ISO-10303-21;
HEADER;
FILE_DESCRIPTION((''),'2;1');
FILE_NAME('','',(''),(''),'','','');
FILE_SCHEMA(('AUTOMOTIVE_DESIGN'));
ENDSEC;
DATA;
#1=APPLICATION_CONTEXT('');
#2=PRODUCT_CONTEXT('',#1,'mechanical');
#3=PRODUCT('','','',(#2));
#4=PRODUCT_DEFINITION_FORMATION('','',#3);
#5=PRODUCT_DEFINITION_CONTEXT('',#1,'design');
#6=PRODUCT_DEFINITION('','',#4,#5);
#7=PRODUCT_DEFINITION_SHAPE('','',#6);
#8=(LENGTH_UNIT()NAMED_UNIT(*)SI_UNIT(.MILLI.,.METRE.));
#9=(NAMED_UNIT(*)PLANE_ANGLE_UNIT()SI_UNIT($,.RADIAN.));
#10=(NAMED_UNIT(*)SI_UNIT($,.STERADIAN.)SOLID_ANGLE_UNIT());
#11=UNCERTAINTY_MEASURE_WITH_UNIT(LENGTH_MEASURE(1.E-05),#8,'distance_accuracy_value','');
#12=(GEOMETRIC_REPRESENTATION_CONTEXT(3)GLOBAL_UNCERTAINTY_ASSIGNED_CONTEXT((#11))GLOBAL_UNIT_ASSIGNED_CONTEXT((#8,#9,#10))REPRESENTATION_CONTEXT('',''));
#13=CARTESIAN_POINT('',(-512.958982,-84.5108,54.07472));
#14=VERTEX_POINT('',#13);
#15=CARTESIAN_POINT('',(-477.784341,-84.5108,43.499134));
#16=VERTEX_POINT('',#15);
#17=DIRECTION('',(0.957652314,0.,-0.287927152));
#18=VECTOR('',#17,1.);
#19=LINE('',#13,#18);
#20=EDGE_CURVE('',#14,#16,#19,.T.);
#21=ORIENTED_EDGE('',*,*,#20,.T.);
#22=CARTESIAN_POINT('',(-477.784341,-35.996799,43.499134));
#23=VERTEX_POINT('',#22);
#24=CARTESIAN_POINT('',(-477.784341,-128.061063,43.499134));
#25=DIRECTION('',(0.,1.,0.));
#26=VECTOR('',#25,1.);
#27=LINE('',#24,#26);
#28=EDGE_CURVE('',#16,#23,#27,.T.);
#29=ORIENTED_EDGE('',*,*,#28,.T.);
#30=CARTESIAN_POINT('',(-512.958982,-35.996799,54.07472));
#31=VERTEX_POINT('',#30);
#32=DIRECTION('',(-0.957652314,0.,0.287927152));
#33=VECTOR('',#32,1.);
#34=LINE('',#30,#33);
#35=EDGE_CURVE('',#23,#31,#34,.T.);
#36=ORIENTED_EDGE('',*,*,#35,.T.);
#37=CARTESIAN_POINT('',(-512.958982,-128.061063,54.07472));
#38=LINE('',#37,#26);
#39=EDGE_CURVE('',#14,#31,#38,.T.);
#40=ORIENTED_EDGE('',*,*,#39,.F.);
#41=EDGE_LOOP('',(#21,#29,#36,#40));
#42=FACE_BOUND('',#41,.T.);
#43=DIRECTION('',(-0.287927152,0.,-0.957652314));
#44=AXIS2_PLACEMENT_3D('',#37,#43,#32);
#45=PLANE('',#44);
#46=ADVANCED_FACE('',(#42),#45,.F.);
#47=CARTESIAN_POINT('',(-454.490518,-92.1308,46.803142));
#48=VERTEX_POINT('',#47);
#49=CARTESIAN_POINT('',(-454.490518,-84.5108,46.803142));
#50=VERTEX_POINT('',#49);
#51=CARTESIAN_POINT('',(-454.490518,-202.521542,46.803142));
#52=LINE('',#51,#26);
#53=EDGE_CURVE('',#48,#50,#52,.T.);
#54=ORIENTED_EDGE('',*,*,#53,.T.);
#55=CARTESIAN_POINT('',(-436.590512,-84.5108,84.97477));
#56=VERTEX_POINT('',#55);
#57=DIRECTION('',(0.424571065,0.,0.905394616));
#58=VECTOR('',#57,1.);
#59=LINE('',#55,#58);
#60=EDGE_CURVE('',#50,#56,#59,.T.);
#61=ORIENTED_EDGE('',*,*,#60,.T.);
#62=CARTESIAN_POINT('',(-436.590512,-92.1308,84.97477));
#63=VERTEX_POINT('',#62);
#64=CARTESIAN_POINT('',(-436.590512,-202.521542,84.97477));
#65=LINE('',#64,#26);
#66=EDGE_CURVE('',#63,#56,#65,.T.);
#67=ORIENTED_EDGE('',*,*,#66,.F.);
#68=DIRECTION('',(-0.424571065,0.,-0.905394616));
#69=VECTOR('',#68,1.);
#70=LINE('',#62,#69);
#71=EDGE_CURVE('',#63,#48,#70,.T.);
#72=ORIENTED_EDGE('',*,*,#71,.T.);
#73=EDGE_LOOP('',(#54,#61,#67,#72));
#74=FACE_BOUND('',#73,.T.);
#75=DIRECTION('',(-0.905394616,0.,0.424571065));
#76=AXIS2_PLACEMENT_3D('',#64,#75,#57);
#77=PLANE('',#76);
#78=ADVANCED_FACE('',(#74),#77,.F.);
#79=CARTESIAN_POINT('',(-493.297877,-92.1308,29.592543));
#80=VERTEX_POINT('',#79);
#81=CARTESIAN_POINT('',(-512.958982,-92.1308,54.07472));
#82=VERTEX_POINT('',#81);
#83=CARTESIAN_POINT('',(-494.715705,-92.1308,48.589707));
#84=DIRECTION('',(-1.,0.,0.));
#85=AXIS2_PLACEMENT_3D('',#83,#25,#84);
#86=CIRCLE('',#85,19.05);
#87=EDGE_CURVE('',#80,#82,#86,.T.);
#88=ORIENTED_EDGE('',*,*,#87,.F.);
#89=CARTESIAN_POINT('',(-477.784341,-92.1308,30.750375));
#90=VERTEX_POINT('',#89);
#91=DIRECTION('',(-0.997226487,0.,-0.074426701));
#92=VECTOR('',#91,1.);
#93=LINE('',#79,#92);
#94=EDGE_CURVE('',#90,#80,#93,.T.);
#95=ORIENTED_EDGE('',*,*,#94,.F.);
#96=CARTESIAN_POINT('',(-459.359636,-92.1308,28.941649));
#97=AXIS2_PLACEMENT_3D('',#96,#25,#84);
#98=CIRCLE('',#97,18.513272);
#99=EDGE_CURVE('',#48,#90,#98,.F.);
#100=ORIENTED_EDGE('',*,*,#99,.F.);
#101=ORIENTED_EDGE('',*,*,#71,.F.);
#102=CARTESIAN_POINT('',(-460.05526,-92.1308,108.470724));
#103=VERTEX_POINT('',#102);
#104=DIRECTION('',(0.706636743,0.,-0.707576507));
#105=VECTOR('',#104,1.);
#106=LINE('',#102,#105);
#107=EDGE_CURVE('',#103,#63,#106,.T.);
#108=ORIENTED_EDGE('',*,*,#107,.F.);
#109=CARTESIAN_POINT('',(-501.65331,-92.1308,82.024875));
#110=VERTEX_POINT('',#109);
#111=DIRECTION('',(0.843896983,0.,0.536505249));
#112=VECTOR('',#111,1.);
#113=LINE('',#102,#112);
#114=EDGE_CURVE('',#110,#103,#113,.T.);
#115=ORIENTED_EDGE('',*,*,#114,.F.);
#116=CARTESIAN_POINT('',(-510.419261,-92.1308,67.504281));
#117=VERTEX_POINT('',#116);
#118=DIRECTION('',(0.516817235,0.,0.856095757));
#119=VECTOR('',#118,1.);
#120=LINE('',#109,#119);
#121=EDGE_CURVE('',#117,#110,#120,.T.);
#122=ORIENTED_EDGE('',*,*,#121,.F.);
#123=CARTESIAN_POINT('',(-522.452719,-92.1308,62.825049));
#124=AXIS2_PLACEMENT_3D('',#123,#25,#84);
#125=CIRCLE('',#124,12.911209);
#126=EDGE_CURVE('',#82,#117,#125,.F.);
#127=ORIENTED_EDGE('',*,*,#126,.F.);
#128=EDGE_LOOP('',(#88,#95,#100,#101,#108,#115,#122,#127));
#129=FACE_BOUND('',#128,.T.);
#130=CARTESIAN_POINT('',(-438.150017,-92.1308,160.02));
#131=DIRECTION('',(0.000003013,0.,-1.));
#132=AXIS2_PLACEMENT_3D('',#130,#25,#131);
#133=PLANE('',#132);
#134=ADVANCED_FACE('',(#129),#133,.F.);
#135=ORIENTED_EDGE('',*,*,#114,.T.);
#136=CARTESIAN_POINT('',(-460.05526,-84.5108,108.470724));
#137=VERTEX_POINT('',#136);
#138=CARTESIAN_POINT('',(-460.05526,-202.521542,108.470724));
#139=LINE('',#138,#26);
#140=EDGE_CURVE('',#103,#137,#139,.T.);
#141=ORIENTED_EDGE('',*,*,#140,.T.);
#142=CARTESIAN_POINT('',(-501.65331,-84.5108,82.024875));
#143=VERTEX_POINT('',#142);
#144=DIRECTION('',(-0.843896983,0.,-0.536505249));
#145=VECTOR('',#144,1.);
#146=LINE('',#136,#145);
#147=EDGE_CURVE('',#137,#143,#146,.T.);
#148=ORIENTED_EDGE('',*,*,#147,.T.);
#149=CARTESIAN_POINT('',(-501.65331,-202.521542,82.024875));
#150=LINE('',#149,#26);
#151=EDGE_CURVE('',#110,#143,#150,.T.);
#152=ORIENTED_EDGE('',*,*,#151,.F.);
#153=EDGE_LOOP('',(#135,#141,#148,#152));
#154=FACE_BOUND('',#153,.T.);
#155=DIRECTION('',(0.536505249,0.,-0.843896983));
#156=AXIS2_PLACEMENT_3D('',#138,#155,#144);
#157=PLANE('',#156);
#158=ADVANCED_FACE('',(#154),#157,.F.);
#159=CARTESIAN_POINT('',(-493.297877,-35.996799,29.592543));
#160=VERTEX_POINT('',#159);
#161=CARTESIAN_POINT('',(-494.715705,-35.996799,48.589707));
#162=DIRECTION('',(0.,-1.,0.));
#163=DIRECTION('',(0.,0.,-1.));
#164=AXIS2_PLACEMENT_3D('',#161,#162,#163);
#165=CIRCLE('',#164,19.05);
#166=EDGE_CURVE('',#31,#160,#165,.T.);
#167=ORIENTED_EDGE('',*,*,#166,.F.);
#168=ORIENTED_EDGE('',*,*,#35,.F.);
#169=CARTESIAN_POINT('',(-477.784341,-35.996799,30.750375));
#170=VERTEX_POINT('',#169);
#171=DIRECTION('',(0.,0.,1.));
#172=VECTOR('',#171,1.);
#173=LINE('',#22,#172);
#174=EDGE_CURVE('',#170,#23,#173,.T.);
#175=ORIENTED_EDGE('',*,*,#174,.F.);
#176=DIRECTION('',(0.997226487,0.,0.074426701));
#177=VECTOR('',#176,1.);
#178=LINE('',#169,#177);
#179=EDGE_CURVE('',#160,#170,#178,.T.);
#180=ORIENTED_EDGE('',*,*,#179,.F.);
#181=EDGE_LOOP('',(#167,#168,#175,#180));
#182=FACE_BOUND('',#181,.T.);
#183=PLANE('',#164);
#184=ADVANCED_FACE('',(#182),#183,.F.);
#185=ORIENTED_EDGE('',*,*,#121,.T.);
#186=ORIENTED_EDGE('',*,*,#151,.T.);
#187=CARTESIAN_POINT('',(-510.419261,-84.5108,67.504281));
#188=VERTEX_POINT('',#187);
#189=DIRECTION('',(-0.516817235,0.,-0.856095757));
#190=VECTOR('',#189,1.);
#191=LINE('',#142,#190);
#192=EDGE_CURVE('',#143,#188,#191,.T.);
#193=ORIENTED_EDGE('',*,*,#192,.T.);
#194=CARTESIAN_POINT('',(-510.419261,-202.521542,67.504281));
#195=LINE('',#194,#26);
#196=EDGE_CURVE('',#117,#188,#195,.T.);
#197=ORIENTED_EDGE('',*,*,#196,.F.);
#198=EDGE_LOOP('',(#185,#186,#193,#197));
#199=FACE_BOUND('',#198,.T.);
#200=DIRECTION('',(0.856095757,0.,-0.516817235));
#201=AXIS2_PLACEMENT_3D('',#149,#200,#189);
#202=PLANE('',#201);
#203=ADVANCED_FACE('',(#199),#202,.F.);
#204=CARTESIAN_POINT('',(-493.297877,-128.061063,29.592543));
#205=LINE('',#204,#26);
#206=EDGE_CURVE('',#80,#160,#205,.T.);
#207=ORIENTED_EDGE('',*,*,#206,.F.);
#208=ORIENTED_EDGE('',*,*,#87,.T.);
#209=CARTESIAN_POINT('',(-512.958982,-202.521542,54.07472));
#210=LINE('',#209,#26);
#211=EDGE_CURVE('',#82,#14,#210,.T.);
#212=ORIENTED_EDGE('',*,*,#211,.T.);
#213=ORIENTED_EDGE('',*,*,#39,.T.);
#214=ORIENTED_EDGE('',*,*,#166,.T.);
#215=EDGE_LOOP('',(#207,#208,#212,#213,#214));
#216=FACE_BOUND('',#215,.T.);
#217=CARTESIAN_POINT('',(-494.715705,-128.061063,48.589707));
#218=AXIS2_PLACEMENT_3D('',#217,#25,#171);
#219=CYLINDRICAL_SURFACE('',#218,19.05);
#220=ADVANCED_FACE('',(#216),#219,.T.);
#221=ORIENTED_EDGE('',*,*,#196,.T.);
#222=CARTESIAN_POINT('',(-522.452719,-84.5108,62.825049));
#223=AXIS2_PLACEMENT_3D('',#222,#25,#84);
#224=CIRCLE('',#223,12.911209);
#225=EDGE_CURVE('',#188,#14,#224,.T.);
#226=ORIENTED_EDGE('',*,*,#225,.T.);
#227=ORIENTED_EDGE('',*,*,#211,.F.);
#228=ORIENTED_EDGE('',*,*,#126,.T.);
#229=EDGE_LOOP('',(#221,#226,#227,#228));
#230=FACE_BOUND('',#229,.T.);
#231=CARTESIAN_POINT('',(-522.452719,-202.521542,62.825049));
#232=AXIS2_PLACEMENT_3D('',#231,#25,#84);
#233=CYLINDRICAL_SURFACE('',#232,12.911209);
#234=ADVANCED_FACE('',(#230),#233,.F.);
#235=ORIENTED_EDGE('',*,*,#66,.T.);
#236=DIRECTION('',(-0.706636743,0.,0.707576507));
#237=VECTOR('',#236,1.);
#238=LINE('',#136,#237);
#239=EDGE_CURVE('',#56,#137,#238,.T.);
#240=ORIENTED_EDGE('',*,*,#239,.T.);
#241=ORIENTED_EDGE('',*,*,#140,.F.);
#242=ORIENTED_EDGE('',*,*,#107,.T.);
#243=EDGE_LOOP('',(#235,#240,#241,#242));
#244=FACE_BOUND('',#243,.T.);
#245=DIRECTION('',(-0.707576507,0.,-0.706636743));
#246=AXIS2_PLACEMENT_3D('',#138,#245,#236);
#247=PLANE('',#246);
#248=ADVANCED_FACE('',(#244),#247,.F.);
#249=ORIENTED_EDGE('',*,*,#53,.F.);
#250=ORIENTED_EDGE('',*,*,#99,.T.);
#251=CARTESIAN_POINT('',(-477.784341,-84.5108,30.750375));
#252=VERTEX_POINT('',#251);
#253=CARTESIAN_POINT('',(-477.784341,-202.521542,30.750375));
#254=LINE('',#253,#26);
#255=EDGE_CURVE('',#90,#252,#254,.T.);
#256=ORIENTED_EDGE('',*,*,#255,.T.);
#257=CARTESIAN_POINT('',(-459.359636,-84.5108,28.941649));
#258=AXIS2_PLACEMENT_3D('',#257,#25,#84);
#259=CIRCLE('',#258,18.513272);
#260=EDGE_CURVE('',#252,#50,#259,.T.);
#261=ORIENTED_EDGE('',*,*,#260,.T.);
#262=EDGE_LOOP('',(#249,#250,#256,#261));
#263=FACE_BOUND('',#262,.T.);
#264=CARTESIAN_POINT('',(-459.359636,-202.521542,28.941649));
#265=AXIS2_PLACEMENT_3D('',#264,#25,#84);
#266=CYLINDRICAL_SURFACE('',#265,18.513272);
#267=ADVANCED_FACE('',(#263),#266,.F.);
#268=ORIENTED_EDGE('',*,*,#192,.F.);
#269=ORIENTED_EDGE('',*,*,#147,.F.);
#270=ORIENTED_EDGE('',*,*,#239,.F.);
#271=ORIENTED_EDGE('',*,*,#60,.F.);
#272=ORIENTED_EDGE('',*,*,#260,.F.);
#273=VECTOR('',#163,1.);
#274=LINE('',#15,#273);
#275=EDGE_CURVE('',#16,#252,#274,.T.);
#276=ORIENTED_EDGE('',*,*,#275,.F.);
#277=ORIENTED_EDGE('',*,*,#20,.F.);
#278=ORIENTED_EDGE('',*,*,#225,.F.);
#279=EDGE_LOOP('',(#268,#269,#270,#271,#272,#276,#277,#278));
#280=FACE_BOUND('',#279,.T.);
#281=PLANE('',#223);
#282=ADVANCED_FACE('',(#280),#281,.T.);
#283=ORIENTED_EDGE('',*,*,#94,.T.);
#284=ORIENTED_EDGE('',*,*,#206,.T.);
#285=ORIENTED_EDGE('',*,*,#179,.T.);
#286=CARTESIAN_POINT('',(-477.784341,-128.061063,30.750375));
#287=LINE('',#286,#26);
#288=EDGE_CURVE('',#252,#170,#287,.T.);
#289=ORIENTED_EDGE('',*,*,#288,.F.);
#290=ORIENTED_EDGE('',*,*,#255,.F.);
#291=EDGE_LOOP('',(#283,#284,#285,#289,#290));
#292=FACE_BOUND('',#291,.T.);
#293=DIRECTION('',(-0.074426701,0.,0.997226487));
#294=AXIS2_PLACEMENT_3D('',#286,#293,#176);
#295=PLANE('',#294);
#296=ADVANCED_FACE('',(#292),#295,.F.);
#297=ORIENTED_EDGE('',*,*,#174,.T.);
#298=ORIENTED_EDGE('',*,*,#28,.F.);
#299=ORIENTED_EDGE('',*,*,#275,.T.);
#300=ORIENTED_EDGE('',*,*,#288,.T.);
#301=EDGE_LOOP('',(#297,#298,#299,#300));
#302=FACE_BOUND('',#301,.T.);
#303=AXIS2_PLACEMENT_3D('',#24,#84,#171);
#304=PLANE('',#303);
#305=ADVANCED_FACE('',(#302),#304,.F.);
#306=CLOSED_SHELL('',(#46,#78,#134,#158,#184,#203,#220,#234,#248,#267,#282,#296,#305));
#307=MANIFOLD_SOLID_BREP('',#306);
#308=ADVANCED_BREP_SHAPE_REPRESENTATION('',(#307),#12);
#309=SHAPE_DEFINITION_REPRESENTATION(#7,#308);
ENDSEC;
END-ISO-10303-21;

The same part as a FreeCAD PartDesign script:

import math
import FreeCAD as App
import Part
import Sketcher

V = App.Vector
Q = App.Units.Quantity

doc = App.newDocument("Part")
params = doc.addObject("Spreadsheet::Sheet", "Params")
for row, (alias, value) in enumerate([
    ("sketch1_radius", "0.75 in"),
    ("pad1_length", "1.91 in"),
    ("sketch2_radius", "0.75 in"),
    ("pad2_length", "0.3 in"),
], start=1):
    params.set(f"A{row}", alias)
    params.set(f"B{row}", "=" + value)
    params.setAlias(f"B{row}", alias)

body = doc.addObject("PartDesign::Body", "Body")

sketch1 = body.newObject("Sketcher::SketchObject", "Sketch")
sketch1.AttachmentSupport = (doc.getObject("XZ_Plane"), [""])
sketch1.MapMode = "FlatFace"
sketch1.AttachmentOffset = App.Placement(V(0, 0, 35.996799), App.Rotation())
sketch1.addGeometry([
    Part.LineSegment(V(-477.784341, 43.499134, 0), V(-512.958982, 54.07472, 0)),
    Part.ArcOfCircle(Part.Circle(V(-494.715705, 48.589707, 0), V(0, 0, 1), 19.05), math.radians(163.266102), math.radians(274.268283)),
    Part.LineSegment(V(-493.297877, 29.592543, 0), V(-477.784341, 30.750375, 0)),
    Part.LineSegment(V(-477.784341, 30.750375, 0), V(-477.784341, 43.499134, 0)),
], False)
sketch1.addConstraint([
    Sketcher.Constraint("Coincident", 0, 2, 1, 1),
    Sketcher.Constraint("Coincident", 1, 2, 2, 1),
    Sketcher.Constraint("Coincident", 2, 2, 3, 1),
    Sketcher.Constraint("Coincident", 3, 2, 0, 1),
    Sketcher.Constraint("Vertical", 3),
    Sketcher.Constraint("Radius", 1, Q("0.75 in")),
    Sketcher.Constraint("DistanceY", 3, 1, 3, 2, 12.748759),
    Sketcher.Constraint("DistanceX", 0, 2, -1, 1, 512.958982),
    Sketcher.Constraint("DistanceY", -1, 1, 0, 2, 54.07472),
    Sketcher.Constraint("DistanceX", 2, 2, -1, 1, 477.784341),
    Sketcher.Constraint("DistanceX", 1, 3, 1, 2, 1.417829),
    Sketcher.Constraint("DistanceY", 1, 2, 3, 2, 13.906591),
    Sketcher.Constraint("Distance", 0, 36.730074),
])
sketch1.setExpression("Constraints[5]", "Params.sketch1_radius")
pad1 = body.newObject("PartDesign::Pad", "Pad")
pad1.Profile = sketch1
pad1.setExpression("Length", "Params.pad1_length")

sketch2 = body.newObject("Sketcher::SketchObject", "Sketch001")
sketch2.AttachmentSupport = (doc.getObject("XZ_Plane"), [""])
sketch2.MapMode = "FlatFace"
sketch2.AttachmentOffset = App.Placement(V(0, 0, 84.5108), App.Rotation())
sketch2.addGeometry([
    Part.LineSegment(V(-436.590512, 84.97477, 0), V(-460.05526, 108.470724, 0)),
    Part.LineSegment(V(-460.05526, 108.470724, 0), V(-501.65331, 82.024875, 0)),
    Part.LineSegment(V(-501.65331, 82.024875, 0), V(-510.419261, 67.504281, 0)),
    Part.ArcOfCircle(Part.Circle(V(-522.452719, 62.825049, 0), V(0, 0, 1), 12.911209), math.radians(-42.666608), math.radians(21.24866)),
    Part.ArcOfCircle(Part.Circle(V(-494.715705, 48.589707, 0), V(0, 0, 1), 19.05), math.radians(163.266102), math.radians(274.268283)),
    Part.LineSegment(V(-493.297877, 29.592543, 0), V(-477.784341, 30.750375, 0)),
    Part.ArcOfCircle(Part.Circle(V(-459.359636, 28.941649, 0), V(0, 0, 1), 18.513272), math.radians(74.751445), math.radians(174.393321)),
    Part.LineSegment(V(-454.490518, 46.803142, 0), V(-436.590512, 84.97477, 0)),
], False)
sketch2.addConstraint([
    Sketcher.Constraint("Coincident", 0, 2, 1, 1),
    Sketcher.Constraint("Coincident", 1, 2, 2, 1),
    Sketcher.Constraint("Coincident", 2, 2, 3, 2),
    Sketcher.Constraint("Coincident", 3, 1, 4, 1),
    Sketcher.Constraint("Tangent", 4, 2, 5, 1),
    Sketcher.Constraint("Coincident", 5, 2, 6, 2),
    Sketcher.Constraint("Coincident", 6, 1, 7, 1),
    Sketcher.Constraint("Coincident", 7, 2, 0, 1),
    Sketcher.Constraint("Radius", 4, Q("0.75 in")),
    Sketcher.Constraint("Radius", 3, 12.911209),
    Sketcher.Constraint("Radius", 6, 18.513272),
    Sketcher.Constraint("DistanceY", 3, 1, 1, 2, Q("1.1003998 in")),
    Sketcher.Constraint("DistanceY", 6, 3, 3, 3, 33.8834),
    Sketcher.Constraint("DistanceX", 2, 2, 0, 2, 50.364001),
    Sketcher.Constraint("DistanceY", 4, 2, 6, 1, 17.210599),
    Sketcher.Constraint("Distance", 0, 33.206238),
    Sketcher.Constraint("Distance", 7, 42.160211),
    Sketcher.Constraint("DistanceX", 3, 3, -1, 1, 522.452719),
    Sketcher.Constraint("DistanceY", -1, 1, 3, 3, 62.825049),
    Sketcher.Constraint("DistanceX", 0, 2, -1, 1, 460.05526),
    Sketcher.Constraint("DistanceX", 1, 2, -1, 1, 501.65331),
    Sketcher.Constraint("DistanceX", 3, 1, -1, 1, 512.958982),
    Sketcher.Constraint("DistanceX", 5, 2, -1, 1, 477.784341),
    Sketcher.Constraint("DistanceX", 6, 1, -1, 1, 454.490518),
    Sketcher.Constraint("DistanceY", -1, 1, 6, 1, 46.803142),
    Sketcher.Constraint("DistanceY", -1, 1, 7, 2, 84.97477),
])
sketch2.setExpression("Constraints[8]", "Params.sketch2_radius")
pad2 = body.newObject("PartDesign::Pad", "Pad001")
pad2.Profile = sketch2
pad2.setExpression("Length", "Params.pad2_length")

doc.recompute()
